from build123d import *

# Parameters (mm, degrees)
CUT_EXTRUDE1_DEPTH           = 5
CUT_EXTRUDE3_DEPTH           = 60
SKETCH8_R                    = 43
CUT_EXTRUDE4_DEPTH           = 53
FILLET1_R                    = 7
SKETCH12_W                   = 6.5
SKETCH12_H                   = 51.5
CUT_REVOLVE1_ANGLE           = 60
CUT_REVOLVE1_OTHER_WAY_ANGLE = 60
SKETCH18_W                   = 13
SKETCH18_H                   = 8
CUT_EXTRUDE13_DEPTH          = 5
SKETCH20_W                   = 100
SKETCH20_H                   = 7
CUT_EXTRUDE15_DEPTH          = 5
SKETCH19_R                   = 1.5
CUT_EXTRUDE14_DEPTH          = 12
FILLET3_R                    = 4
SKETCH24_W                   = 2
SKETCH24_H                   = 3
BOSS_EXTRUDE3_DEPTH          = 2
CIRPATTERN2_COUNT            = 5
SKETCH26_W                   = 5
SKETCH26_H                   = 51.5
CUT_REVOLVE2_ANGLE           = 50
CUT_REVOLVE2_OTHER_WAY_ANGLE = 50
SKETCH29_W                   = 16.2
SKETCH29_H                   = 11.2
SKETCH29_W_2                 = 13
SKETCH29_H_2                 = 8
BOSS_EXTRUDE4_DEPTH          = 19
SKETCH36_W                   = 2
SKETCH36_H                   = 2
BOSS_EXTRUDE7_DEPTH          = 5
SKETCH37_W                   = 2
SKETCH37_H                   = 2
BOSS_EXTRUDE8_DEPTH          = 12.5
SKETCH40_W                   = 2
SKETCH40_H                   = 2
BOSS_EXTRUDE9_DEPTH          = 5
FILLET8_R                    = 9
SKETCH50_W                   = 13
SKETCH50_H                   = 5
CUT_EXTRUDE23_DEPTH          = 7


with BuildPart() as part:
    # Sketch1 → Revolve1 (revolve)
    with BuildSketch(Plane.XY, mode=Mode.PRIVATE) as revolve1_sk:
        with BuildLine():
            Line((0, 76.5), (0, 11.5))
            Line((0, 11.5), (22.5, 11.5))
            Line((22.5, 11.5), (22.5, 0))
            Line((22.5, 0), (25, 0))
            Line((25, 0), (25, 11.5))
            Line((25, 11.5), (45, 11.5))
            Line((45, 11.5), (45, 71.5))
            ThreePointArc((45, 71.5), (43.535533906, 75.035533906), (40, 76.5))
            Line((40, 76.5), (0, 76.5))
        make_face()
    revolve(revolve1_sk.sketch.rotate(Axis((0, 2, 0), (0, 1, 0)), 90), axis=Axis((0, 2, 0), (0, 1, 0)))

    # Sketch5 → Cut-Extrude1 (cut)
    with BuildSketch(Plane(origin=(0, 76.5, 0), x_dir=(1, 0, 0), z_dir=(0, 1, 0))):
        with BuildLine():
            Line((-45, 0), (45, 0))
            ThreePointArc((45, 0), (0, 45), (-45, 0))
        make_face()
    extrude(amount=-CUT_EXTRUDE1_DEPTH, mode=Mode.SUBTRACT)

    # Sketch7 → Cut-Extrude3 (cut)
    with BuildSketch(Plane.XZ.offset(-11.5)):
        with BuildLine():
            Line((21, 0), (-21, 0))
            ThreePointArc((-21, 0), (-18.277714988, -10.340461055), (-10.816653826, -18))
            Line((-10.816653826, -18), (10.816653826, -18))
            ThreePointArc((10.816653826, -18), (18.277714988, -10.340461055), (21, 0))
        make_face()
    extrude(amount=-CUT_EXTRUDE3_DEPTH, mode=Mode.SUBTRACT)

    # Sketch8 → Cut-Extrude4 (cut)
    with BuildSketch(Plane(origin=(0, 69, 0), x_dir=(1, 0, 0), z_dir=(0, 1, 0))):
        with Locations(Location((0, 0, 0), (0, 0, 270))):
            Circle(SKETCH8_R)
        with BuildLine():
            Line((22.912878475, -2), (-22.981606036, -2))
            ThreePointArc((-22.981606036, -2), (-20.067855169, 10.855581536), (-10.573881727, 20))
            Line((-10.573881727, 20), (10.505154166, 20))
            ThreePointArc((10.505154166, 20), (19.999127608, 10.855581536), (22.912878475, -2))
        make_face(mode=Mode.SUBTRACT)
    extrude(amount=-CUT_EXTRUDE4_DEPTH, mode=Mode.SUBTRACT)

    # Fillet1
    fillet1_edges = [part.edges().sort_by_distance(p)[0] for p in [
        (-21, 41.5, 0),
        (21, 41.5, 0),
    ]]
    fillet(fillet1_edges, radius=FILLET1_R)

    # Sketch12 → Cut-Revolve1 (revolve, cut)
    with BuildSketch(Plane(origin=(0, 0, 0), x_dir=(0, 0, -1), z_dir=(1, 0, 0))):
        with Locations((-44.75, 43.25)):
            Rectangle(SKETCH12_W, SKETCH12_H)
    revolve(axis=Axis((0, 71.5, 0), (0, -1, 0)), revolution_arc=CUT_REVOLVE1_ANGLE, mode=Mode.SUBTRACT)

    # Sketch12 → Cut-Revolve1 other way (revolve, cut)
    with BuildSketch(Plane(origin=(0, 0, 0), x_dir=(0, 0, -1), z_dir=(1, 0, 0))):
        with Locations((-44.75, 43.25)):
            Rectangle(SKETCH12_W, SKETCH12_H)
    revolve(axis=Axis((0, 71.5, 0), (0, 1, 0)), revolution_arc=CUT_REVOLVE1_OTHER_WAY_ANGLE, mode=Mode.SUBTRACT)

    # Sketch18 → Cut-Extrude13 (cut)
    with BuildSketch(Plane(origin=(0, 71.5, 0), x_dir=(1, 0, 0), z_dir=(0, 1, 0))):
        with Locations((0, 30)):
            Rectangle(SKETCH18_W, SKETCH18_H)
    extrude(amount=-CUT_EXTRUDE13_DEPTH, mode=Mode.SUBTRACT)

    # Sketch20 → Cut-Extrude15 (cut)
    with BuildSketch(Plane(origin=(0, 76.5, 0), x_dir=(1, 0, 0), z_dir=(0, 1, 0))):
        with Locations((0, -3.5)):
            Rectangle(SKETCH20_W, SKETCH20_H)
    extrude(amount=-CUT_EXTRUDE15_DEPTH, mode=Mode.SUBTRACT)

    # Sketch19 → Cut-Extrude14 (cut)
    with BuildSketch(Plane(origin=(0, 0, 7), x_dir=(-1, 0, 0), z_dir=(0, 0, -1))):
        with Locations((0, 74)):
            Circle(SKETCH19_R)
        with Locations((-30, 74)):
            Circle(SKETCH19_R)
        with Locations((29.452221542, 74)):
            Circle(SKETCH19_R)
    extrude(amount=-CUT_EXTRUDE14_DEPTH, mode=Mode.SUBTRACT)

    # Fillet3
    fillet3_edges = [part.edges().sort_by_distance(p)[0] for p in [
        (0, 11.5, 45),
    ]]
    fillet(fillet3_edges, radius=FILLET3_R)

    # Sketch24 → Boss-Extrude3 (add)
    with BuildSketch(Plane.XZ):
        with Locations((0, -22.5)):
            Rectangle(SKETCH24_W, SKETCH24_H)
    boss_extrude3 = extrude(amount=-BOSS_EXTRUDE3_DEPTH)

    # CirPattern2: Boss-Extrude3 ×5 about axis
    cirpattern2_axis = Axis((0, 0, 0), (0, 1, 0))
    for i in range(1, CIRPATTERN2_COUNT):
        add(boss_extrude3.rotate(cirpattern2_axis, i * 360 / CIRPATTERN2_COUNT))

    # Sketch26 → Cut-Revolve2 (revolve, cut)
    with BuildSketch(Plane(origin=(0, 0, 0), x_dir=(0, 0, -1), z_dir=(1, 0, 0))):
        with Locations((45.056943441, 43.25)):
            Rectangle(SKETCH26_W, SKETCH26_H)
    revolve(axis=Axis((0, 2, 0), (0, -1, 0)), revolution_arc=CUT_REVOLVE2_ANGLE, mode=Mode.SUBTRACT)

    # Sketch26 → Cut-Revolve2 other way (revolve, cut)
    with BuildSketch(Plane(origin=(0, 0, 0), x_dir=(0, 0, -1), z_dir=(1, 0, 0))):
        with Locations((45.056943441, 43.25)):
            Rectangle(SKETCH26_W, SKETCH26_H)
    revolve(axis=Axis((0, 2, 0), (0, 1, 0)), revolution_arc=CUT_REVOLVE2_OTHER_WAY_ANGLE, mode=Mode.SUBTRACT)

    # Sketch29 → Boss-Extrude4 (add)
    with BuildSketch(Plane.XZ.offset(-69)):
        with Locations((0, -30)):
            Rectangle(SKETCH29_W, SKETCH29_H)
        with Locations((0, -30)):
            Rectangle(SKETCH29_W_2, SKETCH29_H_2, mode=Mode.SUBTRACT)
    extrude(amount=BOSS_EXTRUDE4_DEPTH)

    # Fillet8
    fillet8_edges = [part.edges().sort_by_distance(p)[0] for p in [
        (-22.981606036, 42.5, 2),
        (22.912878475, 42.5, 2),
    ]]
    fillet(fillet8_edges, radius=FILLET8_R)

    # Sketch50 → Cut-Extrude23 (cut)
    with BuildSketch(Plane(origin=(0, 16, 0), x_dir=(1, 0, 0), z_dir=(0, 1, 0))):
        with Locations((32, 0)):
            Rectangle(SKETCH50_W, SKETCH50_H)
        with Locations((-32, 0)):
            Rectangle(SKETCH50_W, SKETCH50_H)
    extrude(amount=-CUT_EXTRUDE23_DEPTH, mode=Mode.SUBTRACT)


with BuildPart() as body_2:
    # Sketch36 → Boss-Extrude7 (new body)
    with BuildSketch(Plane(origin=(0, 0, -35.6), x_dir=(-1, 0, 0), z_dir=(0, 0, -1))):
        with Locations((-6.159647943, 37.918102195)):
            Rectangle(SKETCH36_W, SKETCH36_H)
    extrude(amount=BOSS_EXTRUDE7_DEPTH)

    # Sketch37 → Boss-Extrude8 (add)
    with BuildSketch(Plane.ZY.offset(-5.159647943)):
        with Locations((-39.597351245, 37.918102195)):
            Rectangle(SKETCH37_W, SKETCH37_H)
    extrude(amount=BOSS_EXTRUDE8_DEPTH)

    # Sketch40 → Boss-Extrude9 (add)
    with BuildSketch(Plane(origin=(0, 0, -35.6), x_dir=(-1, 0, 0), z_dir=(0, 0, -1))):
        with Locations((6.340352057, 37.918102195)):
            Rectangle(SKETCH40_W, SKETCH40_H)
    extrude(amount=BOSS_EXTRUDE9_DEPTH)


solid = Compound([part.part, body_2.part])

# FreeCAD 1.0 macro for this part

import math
import FreeCAD as App
import Part
import Sketcher
from FreeCAD import Vector


def edges_at(feature, points):
    """Names of the edges that pass closest to the given points."""
    edges = feature.Shape.Edges
    near = lambda p: min(range(len(edges)), key=lambda i: edges[i].distToShape(Part.Vertex(*p))[0])
    return sorted({f"Edge{near(p) + 1}" for p in points})


def add_polygon(sketch, points):
    """Adds a closed chain of lines whose ends are joined by coincident constraints."""
    first, n = sketch.GeometryCount, len(points)
    for a, b in zip(points, points[1:] + points[:1]):
        sketch.addGeometry(Part.LineSegment(App.Vector(*a, 0), App.Vector(*b, 0)), False)
    for i in range(n):
        sketch.addConstraint(Sketcher.Constraint("Coincident", first + i, 2, first + (i + 1) % n, 1))

doc = App.newDocument("Part")
body = doc.addObject("PartDesign::Body", "Body")

# Sketch on XY plane
sketch1 = body.newObject("Sketcher::SketchObject", "Sketch")
sketch1.AttachmentSupport = (doc.getObject("XY_Plane"), [""])
sketch1.MapMode = "FlatFace"
sketch1.addGeometry([
    Part.LineSegment(Vector(0, 76.5, 0), Vector(0, 11.5, 0)),  # 0
    Part.LineSegment(Vector(0, 11.5, 0), Vector(22.5, 11.5, 0)),  # 1
    Part.LineSegment(Vector(22.5, 11.5, 0), Vector(22.5, 0, 0)),  # 2
    Part.LineSegment(Vector(22.5, 0, 0), Vector(25, 0, 0)),  # 3
    Part.LineSegment(Vector(25, 0, 0), Vector(25, 11.5, 0)),  # 4
    Part.LineSegment(Vector(25, 11.5, 0), Vector(45, 11.5, 0)),  # 5
    Part.LineSegment(Vector(45, 11.5, 0), Vector(45, 71.5, 0)),  # 6
    Part.ArcOfCircle(Part.Circle(Vector(40, 71.5, 0), Vector(0, 0, 1), 5), math.radians(0), math.radians(90)),  # 7
    Part.LineSegment(Vector(40, 76.5, 0), Vector(0, 76.5, 0)),  # 8
], False)
sketch1.addConstraint([
    Sketcher.Constraint("Coincident", 0, 2, 1, 1),
    Sketcher.Constraint("Coincident", 1, 2, 2, 1),
    Sketcher.Constraint("Coincident", 2, 2, 3, 1),
    Sketcher.Constraint("Coincident", 3, 2, 4, 1),
    Sketcher.Constraint("Coincident", 4, 2, 5, 1),
    Sketcher.Constraint("Coincident", 5, 2, 6, 1),
    Sketcher.Constraint("Tangent", 6, 2, 7, 1),
    Sketcher.Constraint("Tangent", 7, 2, 8, 1),
    Sketcher.Constraint("Coincident", 8, 2, 0, 1),
    Sketcher.Constraint("Vertical", 0),
    Sketcher.Constraint("Horizontal", 1),
    Sketcher.Constraint("Vertical", 2),
    Sketcher.Constraint("Horizontal", 3),
    Sketcher.Constraint("Vertical", 4),
    Sketcher.Constraint("Horizontal", 5),
    Sketcher.Constraint("Vertical", 6),
    Sketcher.Constraint("Horizontal", 8),
    Sketcher.Constraint("PointOnObject", 0, 2, -2),
    Sketcher.Constraint("PointOnObject", 2, 2, -1),
    Sketcher.Constraint("Horizontal", 1, 2, 4, 2),
    Sketcher.Constraint("Radius", 7, 5.0),
    Sketcher.Constraint("DistanceX", 5, 1, 5, 2, 20.0),
    Sketcher.Constraint("DistanceX", 8, 2, 8, 1, 40.0),
    Sketcher.Constraint("DistanceY", 0, 2, 0, 1, 65.0),
    Sketcher.Constraint("DistanceX", 1, 1, 1, 2, 22.5),
    Sketcher.Constraint("DistanceY", 2, 2, 2, 1, 11.5),
])
revolution = body.newObject("PartDesign::Revolution", "Revolution")
revolution.Profile = sketch1
revolution.ReferenceAxis = (sketch1, ["V_Axis"])
revolution.Angle = 360

# Sketch on XZ plane
sketch2 = body.newObject("Sketcher::SketchObject", "Sketch001")
sketch2.AttachmentSupport = (doc.getObject("XZ_Plane"), [""])
sketch2.MapMode = "FlatFace"
sketch2.AttachmentOffset = App.Placement(Vector(0, 0, -76.5), App.Rotation())
sketch2.addGeometry([
    Part.LineSegment(Vector(-45, 0, 0), Vector(45, 0, 0)),
    Part.ArcOfCircle(Part.Circle(Vector(0, 0, 0), Vector(0, 0, 1), 45), math.radians(180), math.radians(360)),
], False)
sketch2.addConstraint([
    Sketcher.Constraint("Coincident", 0, 1, 1, 1),
    Sketcher.Constraint("Coincident", 1, 2, 0, 2),
    Sketcher.Constraint("Horizontal", 0),
    Sketcher.Constraint("Coincident", 1, 3, -1, 1),
    Sketcher.Constraint("PointOnObject", 0, 1, -1),
    Sketcher.Constraint("Radius", 1, 45.0),
])
pocket1 = body.newObject("PartDesign::Pocket", "Pocket")
pocket1.Profile = sketch2
pocket1.Length = 5
pocket1.Reversed = True

# Sketch on XZ plane
sketch3 = body.newObject("Sketcher::SketchObject", "Sketch002")
sketch3.AttachmentSupport = (doc.getObject("XZ_Plane"), [""])
sketch3.MapMode = "FlatFace"
sketch3.AttachmentOffset = App.Placement(Vector(0, 0, -11.5), App.Rotation())
sketch3.addGeometry([
    Part.LineSegment(Vector(21, 0, 0), Vector(-21, 0, 0)),
    Part.ArcOfCircle(Part.Circle(Vector(0, 0, 0), Vector(0, 0, 1), 21), math.radians(180), math.radians(239)),
    Part.LineSegment(Vector(-11, -18, 0), Vector(11, -18, 0)),
    Part.ArcOfCircle(Part.Circle(Vector(0, 0, 0), Vector(0, 0, 1), 21), math.radians(-59), math.radians(0)),
], False)
sketch3.addConstraint([
    Sketcher.Constraint("Coincident", 0, 2, 1, 1),
    Sketcher.Constraint("Coincident", 1, 2, 2, 1),
    Sketcher.Constraint("Coincident", 2, 2, 3, 1),
    Sketcher.Constraint("Coincident", 3, 2, 0, 1),
    Sketcher.Constraint("Horizontal", 0),
    Sketcher.Constraint("Horizontal", 2),
    Sketcher.Constraint("Coincident", 1, 3, -1, 1),
    Sketcher.Constraint("Coincident", 3, 3, -1, 1),
    Sketcher.Constraint("Equal", 1, 3),
    Sketcher.Constraint("PointOnObject", 0, 2, -1),
    Sketcher.Constraint("Radius", 1, 21.0),
    Sketcher.Constraint("DistanceY", 1, 2, -1, 1, 18.0),
])
pocket2 = body.newObject("PartDesign::Pocket", "Pocket001")
pocket2.Profile = sketch3
pocket2.Length = 60

# Sketch on XZ plane
sketch4 = body.newObject("Sketcher::SketchObject", "Sketch003")
sketch4.AttachmentSupport = (doc.getObject("XZ_Plane"), [""])
sketch4.MapMode = "FlatFace"
sketch4.AttachmentOffset = App.Placement(Vector(0, 0, -69), App.Rotation())
sketch4.addGeometry([
    Part.Circle(Vector(0, 0, 0), Vector(0, 0, 1), 43),  # 0
    Part.ArcOfCircle(Part.Circle(Vector(0, 0, 0), Vector(0, 0, 1), 23), math.radians(-63), math.radians(4)),  # 1
    Part.LineSegment(Vector(23, 2, 0), Vector(-23, 2, 0)),  # 2
    Part.ArcOfCircle(Part.Circle(Vector(0, 0, 0), Vector(0, 0, 1), 23), math.radians(176), math.radians(243)),  # 3
    Part.LineSegment(Vector(-11, -20, 0), Vector(11, -20, 0)),  # 4
], False)
sketch4.addConstraint([
    Sketcher.Constraint("Coincident", 1, 2, 2, 1),
    Sketcher.Constraint("Coincident", 2, 2, 3, 1),
    Sketcher.Constraint("Coincident", 3, 2, 4, 1),
    Sketcher.Constraint("Coincident", 4, 2, 1, 1),
    Sketcher.Constraint("Horizontal", 2),
    Sketcher.Constraint("Horizontal", 4),
    Sketcher.Constraint("Coincident", 0, 3, -1, 1),
    Sketcher.Constraint("Coincident", 3, 3, 1, 3),
    Sketcher.Constraint("Equal", 1, 3),
    Sketcher.Constraint("Diameter", 0, 86.0),
    Sketcher.Constraint("Radius", 1, 23.0),
    Sketcher.Constraint("DistanceY", -1, 1, 1, 2, 2.0),
    Sketcher.Constraint("DistanceY", 3, 2, -1, 1, 20.0),
    Sketcher.Constraint("DistanceX", 2, 2, 2, 1, 45.894485),
    Sketcher.Constraint("DistanceX", -1, 1, 1, 2, 22.912878),
])
pocket3 = body.newObject("PartDesign::Pocket", "Pocket002")
pocket3.Profile = sketch4
pocket3.Length = 53
pocket3.Reversed = True
doc.recompute()

fillet = body.newObject("PartDesign::Fillet", "Fillet")
fillet.Base = (pocket3, edges_at(pocket3, [(-21, 41.5, 0), (21, 41.5, 0)]))
fillet.Radius = 7

# Sketch on YZ plane
sketch5 = body.newObject("Sketcher::SketchObject", "Sketch004")
sketch5.AttachmentSupport = (doc.getObject("YZ_Plane"), [""])
sketch5.MapMode = "FlatFace"
add_polygon(sketch5, [(69, 48), (18, 48), (18, 42), (69, 42)])  # lines 0-3
sketch5.addConstraint([
    Sketcher.Constraint("Horizontal", 0),
    Sketcher.Constraint("Vertical", 1),
    Sketcher.Constraint("Horizontal", 2),
    Sketcher.Constraint("Vertical", 3),
    Sketcher.Constraint("DistanceX", 0, 2, 0, 1, 51.5),
    Sketcher.Constraint("DistanceY", 1, 2, 1, 1, 6.5),
    Sketcher.Constraint("DistanceY", -1, 1, 0, 2, 48.0),
    Sketcher.Constraint("DistanceX", -1, 1, 2, 2, 69.0),
])
groove = body.newObject("PartDesign::Groove", "Groove")
groove.Profile = sketch5
groove.ReferenceAxis = (sketch5, ["H_Axis"])
groove.Angle = 60
groove.Reversed = True

# Sketch on YZ plane
sketch6 = body.newObject("Sketcher::SketchObject", "Sketch005")
sketch6.AttachmentSupport = (doc.getObject("YZ_Plane"), [""])
sketch6.MapMode = "FlatFace"
add_polygon(sketch6, [(69, 48), (18, 48), (18, 42), (69, 42)])  # lines 0-3
sketch6.addConstraint([
    Sketcher.Constraint("Horizontal", 0),
    Sketcher.Constraint("Vertical", 1),
    Sketcher.Constraint("Horizontal", 2),
    Sketcher.Constraint("Vertical", 3),
    Sketcher.Constraint("DistanceX", 0, 2, 0, 1, 51.5),
    Sketcher.Constraint("DistanceY", 1, 2, 1, 1, 6.5),
    Sketcher.Constraint("DistanceY", -1, 1, 0, 2, 48.0),
    Sketcher.Constraint("DistanceX", -1, 1, 2, 2, 69.0),
])
groove2 = body.newObject("PartDesign::Groove", "Groove001")
groove2.Profile = sketch6
groove2.ReferenceAxis = (sketch6, ["H_Axis"])
groove2.Angle = 60

# Sketch on XZ plane
sketch7 = body.newObject("Sketcher::SketchObject", "Sketch006")
sketch7.AttachmentSupport = (doc.getObject("XZ_Plane"), [""])
sketch7.MapMode = "FlatFace"
sketch7.AttachmentOffset = App.Placement(Vector(0, 0, -71.5), App.Rotation())
add_polygon(sketch7, [(-6, -34), (-6, -26), (6, -26), (6, -34)])  # lines 0-3
sketch7.addConstraint([
    Sketcher.Constraint("Vertical", 0),
    Sketcher.Constraint("Horizontal", 1),
    Sketcher.Constraint("Vertical", 2),
    Sketcher.Constraint("Horizontal", 3),
    Sketcher.Constraint("DistanceX", 1, 1, 1, 2, 13.0),
    Sketcher.Constraint("DistanceY", 0, 1, 0, 2, 8.0),
    Sketcher.Constraint("DistanceY", 0, 2, -1, 1, 26.0),
    Sketcher.Constraint("DistanceX", 0, 2, -1, 1, 6.5),
])
pocket4 = body.newObject("PartDesign::Pocket", "Pocket003")
pocket4.Profile = sketch7
pocket4.Length = 5
pocket4.Reversed = True

# Sketch on XZ plane
sketch8 = body.newObject("Sketcher::SketchObject", "Sketch007")
sketch8.AttachmentSupport = (doc.getObject("XZ_Plane"), [""])
sketch8.MapMode = "FlatFace"
sketch8.AttachmentOffset = App.Placement(Vector(0, 0, -76.5), App.Rotation())
add_polygon(sketch8, [(-50, 0), (-50, 7), (50, 7), (50, 0)])  # lines 0-3
sketch8.addConstraint([
    Sketcher.Constraint("Vertical", 0),
    Sketcher.Constraint("Horizontal", 1),
    Sketcher.Constraint("Vertical", 2),
    Sketcher.Constraint("Horizontal", 3),
    Sketcher.Constraint("Symmetric", 2, 2, 3, 2, -1, 1),
    Sketcher.Constraint("DistanceX", 1, 1, 1, 2, 100.0),
    Sketcher.Constraint("DistanceY", 0, 1, 0, 2, 7.0),
])
pocket5 = body.newObject("PartDesign::Pocket", "Pocket004")
pocket5.Profile = sketch8
pocket5.Length = 5
pocket5.Reversed = True

# Sketch on XY plane
sketch9 = body.newObject("Sketcher::SketchObject", "Sketch008")
sketch9.AttachmentSupport = (doc.getObject("XY_Plane"), [""])
sketch9.MapMode = "FlatFace"
sketch9.AttachmentOffset = App.Placement(Vector(0, 0, 7), App.Rotation())
sketch9.addGeometry([
    Part.Circle(Vector(0, 74, 0), Vector(0, 0, 1), 1.5),
    Part.Circle(Vector(30, 74, 0), Vector(0, 0, 1), 1.5),
    Part.Circle(Vector(-29.5, 74, 0), Vector(0, 0, 1), 1.5),
], False)
sketch9.addConstraint([
    Sketcher.Constraint("Equal", 0, 1),
    Sketcher.Constraint("Equal", 1, 2),
    Sketcher.Constraint("PointOnObject", 0, 3, -2),
    Sketcher.Constraint("Horizontal", 0, 3, 1, 3),
    Sketcher.Constraint("Horizontal", 1, 3, 2, 3),
    Sketcher.Constraint("Diameter", 0, 3.0),
    Sketcher.Constraint("DistanceY", -1, 1, 0, 3, 74.0),
    Sketcher.Constraint("DistanceX", -1, 1, 1, 3, 30.0),
    Sketcher.Constraint("DistanceX", 2, 3, -1, 1, 29.452222),
])
pocket6 = body.newObject("PartDesign::Pocket", "Pocket005")
pocket6.Profile = sketch9
pocket6.Length = 12
pocket6.Reversed = True
doc.recompute()

fillet2 = body.newObject("PartDesign::Fillet", "Fillet001")
fillet2.Base = (pocket6, edges_at(pocket6, [(0, 11.5, 45)]))
fillet2.Radius = 4

# Sketch on XZ plane
sketch10 = body.newObject("Sketcher::SketchObject", "Sketch009")
sketch10.AttachmentSupport = (doc.getObject("XZ_Plane"), [""])
sketch10.MapMode = "FlatFace"
add_polygon(sketch10, [(-1, -21), (-1, -24), (1, -24), (1, -21)])  # lines 0-3
sketch10.addConstraint([
    Sketcher.Constraint("Vertical", 0),
    Sketcher.Constraint("Horizontal", 1),
    Sketcher.Constraint("Vertical", 2),
    Sketcher.Constraint("Horizontal", 3),
    Sketcher.Constraint("DistanceX", 1, 1, 1, 2, 2.0),
    Sketcher.Constraint("DistanceY", 0, 2, 0, 1, 3.0),
    Sketcher.Constraint("DistanceX", 0, 2, -1, 1, 1.0),
    Sketcher.Constraint("DistanceY", 0, 2, -1, 1, 24.0),
])
pad1 = body.newObject("PartDesign::Pad", "Pad")
pad1.Profile = sketch10
pad1.Length = 2
pad1.Reversed = True
doc.recompute()

polarpattern = body.newObject("PartDesign::PolarPattern", "PolarPattern")
polarpattern.Originals = [pad1]
polarpattern.Axis = (doc.getObject("Y_Axis"), [""])
polarpattern.Angle = 360
polarpattern.Occurrences = 5
body.Tip = polarpattern

# Sketch on YZ plane
sketch11 = body.newObject("Sketcher::SketchObject", "Sketch010")
sketch11.AttachmentSupport = (doc.getObject("YZ_Plane"), [""])
sketch11.MapMode = "FlatFace"
add_polygon(sketch11, [(69, -43), (18, -43), (18, -48), (69, -48)])  # lines 0-3
sketch11.addConstraint([
    Sketcher.Constraint("Horizontal", 0),
    Sketcher.Constraint("Vertical", 1),
    Sketcher.Constraint("Horizontal", 2),
    Sketcher.Constraint("Vertical", 3),
    Sketcher.Constraint("DistanceY", 1, 2, 1, 1, 5.0),
    Sketcher.Constraint("DistanceX", 0, 2, 0, 1, 51.5),
    Sketcher.Constraint("DistanceX", -1, 1, 2, 2, 69.0),
    Sketcher.Constraint("DistanceY", 0, 2, -1, 1, 42.556943),
])
groove3 = body.newObject("PartDesign::Groove", "Groove002")
groove3.Profile = sketch11
groove3.ReferenceAxis = (sketch11, ["H_Axis"])
groove3.Angle = 50
groove3.Reversed = True

# Sketch on YZ plane
sketch12 = body.newObject("Sketcher::SketchObject", "Sketch011")
sketch12.AttachmentSupport = (doc.getObject("YZ_Plane"), [""])
sketch12.MapMode = "FlatFace"
add_polygon(sketch12, [(69, -43), (18, -43), (18, -48), (69, -48)])  # lines 0-3
sketch12.addConstraint([
    Sketcher.Constraint("Horizontal", 0),
    Sketcher.Constraint("Vertical", 1),
    Sketcher.Constraint("Horizontal", 2),
    Sketcher.Constraint("Vertical", 3),
    Sketcher.Constraint("DistanceY", 1, 2, 1, 1, 5.0),
    Sketcher.Constraint("DistanceX", 0, 2, 0, 1, 51.5),
    Sketcher.Constraint("DistanceX", -1, 1, 2, 2, 69.0),
    Sketcher.Constraint("DistanceY", 0, 2, -1, 1, 42.556943),
])
groove4 = body.newObject("PartDesign::Groove", "Groove003")
groove4.Profile = sketch12
groove4.ReferenceAxis = (sketch12, ["H_Axis"])
groove4.Angle = 50

# Sketch on XZ plane
sketch13 = body.newObject("Sketcher::SketchObject", "Sketch012")
sketch13.AttachmentSupport = (doc.getObject("XZ_Plane"), [""])
sketch13.MapMode = "FlatFace"
sketch13.AttachmentOffset = App.Placement(Vector(0, 0, -69), App.Rotation())
add_polygon(sketch13, [(-8, -24), (-8, -36), (8, -36), (8, -24)])  # lines 0-3
add_polygon(sketch13, [(6, -34), (-6, -34), (-6, -26), (6, -26)])  # lines 4-7
sketch13.addConstraint([
    Sketcher.Constraint("Vertical", 0),
    Sketcher.Constraint("Horizontal", 1),
    Sketcher.Constraint("Vertical", 2),
    Sketcher.Constraint("Horizontal", 3),
    Sketcher.Constraint("Horizontal", 4),
    Sketcher.Constraint("Vertical", 5),
    Sketcher.Constraint("Horizontal", 6),
    Sketcher.Constraint("Vertical", 7),
    Sketcher.Constraint("DistanceX", 4, 2, 4, 1, 13.0),
    Sketcher.Constraint("DistanceY", 5, 1, 5, 2, 8.0),
    Sketcher.Constraint("DistanceX", 1, 1, 1, 2, 16.2),
    Sketcher.Constraint("DistanceY", 0, 2, 0, 1, 11.2),
    Sketcher.Constraint("DistanceY", 4, 2, -1, 1, 34.0),
    Sketcher.Constraint("DistanceX", 0, 2, -1, 1, 8.1),
    Sketcher.Constraint("DistanceY", 0, 2, -1, 1, 35.6),
    Sketcher.Constraint("DistanceX", 4, 2, -1, 1, 6.5),
])
pad2 = body.newObject("PartDesign::Pad", "Pad001")
pad2.Profile = sketch13
pad2.Length = 19
doc.recompute()

fillet3 = body.newObject("PartDesign::Fillet", "Fillet002")
fillet3.Base = (pad2, edges_at(pad2, [(-22.982, 42.5, 2), (22.913, 42.5, 2)]))
fillet3.Radius = 9

# Sketch on XZ plane
sketch14 = body.newObject("Sketcher::SketchObject", "Sketch013")
sketch14.AttachmentSupport = (doc.getObject("XZ_Plane"), [""])
sketch14.MapMode = "FlatFace"
sketch14.AttachmentOffset = App.Placement(Vector(0, 0, -16), App.Rotation())
add_polygon(sketch14, [(26, -2), (26, 2), (38, 2), (38, -2)])  # lines 0-3
add_polygon(sketch14, [(-38, -2), (-38, 2), (-26, 2), (-26, -2)])  # lines 4-7
sketch14.addConstraint([
    Sketcher.Constraint("Vertical", 0),
    Sketcher.Constraint("Horizontal", 1),
    Sketcher.Constraint("Vertical", 2),
    Sketcher.Constraint("Horizontal", 3),
    Sketcher.Constraint("Vertical", 4),
    Sketcher.Constraint("Horizontal", 5),
    Sketcher.Constraint("Vertical", 6),
    Sketcher.Constraint("Horizontal", 7),
    Sketcher.Constraint("Symmetric", 2, 2, 4, 2, -1, 1),
    Sketcher.Constraint("Symmetric", 0, 2, 6, 2, -1, 1),
    Sketcher.Constraint("Horizontal", 1, 2, 4, 2),
    Sketcher.Constraint("DistanceX", 1, 1, 1, 2, 13.0),
    Sketcher.Constraint("DistanceY", 0, 1, 0, 2, 5.0),
    Sketcher.Constraint("DistanceX", 4, 2, 0, 2, 64.0),
])
pocket7 = body.newObject("PartDesign::Pocket", "Pocket006")
pocket7.Profile = sketch14
pocket7.Length = 7
pocket7.Reversed = True
body2 = doc.addObject("PartDesign::Body", "Body001")

# Sketch on XY plane
sketch15 = body2.newObject("Sketcher::SketchObject", "Sketch014")
sketch15.AttachmentSupport = (doc.getObject("XY_Plane001"), [""])
sketch15.MapMode = "FlatFace"
sketch15.AttachmentOffset = App.Placement(Vector(0, 0, -35.6), App.Rotation())
add_polygon(sketch15, [(7.2, 38.9), (7.2, 36.9), (5.2, 36.9), (5.2, 38.9)])  # lines 0-3
sketch15.addConstraint([
    Sketcher.Constraint("Vertical", 0),
    Sketcher.Constraint("Horizontal", 1),
    Sketcher.Constraint("Vertical", 2),
    Sketcher.Constraint("Horizontal", 3),
    Sketcher.Constraint("Equal", 3, 0),
    Sketcher.Constraint("DistanceX", 1, 2, 1, 1, 2.0),
    Sketcher.Constraint("DistanceX", -1, 1, 0, 2, 7.159648),
    Sketcher.Constraint("DistanceY", -1, 1, 0, 2, 36.918102),
])
pad3 = body2.newObject("PartDesign::Pad", "Pad002")
pad3.Profile = sketch15
pad3.Length = 5
pad3.Reversed = True

# Sketch on YZ plane
sketch16 = body2.newObject("Sketcher::SketchObject", "Sketch015")
sketch16.AttachmentSupport = (doc.getObject("YZ_Plane001"), [""])
sketch16.MapMode = "FlatFace"
sketch16.AttachmentOffset = App.Placement(Vector(0, 0, 5.159648), App.Rotation())
add_polygon(sketch16, [(38.9, -40.6), (36.9, -40.6), (36.9, -38.6), (38.9, -38.6)])  # lines 0-3
sketch16.addConstraint([
    Sketcher.Constraint("Horizontal", 0),
    Sketcher.Constraint("Vertical", 1),
    Sketcher.Constraint("Horizontal", 2),
    Sketcher.Constraint("Vertical", 3),
    Sketcher.Constraint("Equal", 2, 1),
    Sketcher.Constraint("DistanceX", 0, 2, 0, 1, 2.0),
    Sketcher.Constraint("DistanceY", 0, 2, -1, 1, 40.597351),
    Sketcher.Constraint("DistanceX", -1, 1, 0, 2, 36.918102),
])
pad4 = body2.newObject("PartDesign::Pad", "Pad003")
pad4.Profile = sketch16
pad4.Length = 12.5
pad4.Reversed = True

# Sketch on XY plane
sketch17 = body2.newObject("Sketcher::SketchObject", "Sketch016")
sketch17.AttachmentSupport = (doc.getObject("XY_Plane001"), [""])
sketch17.MapMode = "FlatFace"
sketch17.AttachmentOffset = App.Placement(Vector(0, 0, -35.6), App.Rotation())
add_polygon(sketch17, [(-5.3, 38.9), (-5.3, 36.9), (-7.3, 36.9), (-7.3, 38.9)])  # lines 0-3
sketch17.addConstraint([
    Sketcher.Constraint("Vertical", 0),
    Sketcher.Constraint("Horizontal", 1),
    Sketcher.Constraint("Vertical", 2),
    Sketcher.Constraint("Horizontal", 3),
    Sketcher.Constraint("Equal", 3, 0),
    Sketcher.Constraint("DistanceX", 1, 2, 1, 1, 2.0),
    Sketcher.Constraint("DistanceX", 0, 2, -1, 1, 5.340352),
    Sketcher.Constraint("DistanceY", -1, 1, 0, 2, 36.918102),
])
pad5 = body2.newObject("PartDesign::Pad", "Pad004")
pad5.Profile = sketch17
pad5.Length = 5
pad5.Reversed = True

doc.recompute()
